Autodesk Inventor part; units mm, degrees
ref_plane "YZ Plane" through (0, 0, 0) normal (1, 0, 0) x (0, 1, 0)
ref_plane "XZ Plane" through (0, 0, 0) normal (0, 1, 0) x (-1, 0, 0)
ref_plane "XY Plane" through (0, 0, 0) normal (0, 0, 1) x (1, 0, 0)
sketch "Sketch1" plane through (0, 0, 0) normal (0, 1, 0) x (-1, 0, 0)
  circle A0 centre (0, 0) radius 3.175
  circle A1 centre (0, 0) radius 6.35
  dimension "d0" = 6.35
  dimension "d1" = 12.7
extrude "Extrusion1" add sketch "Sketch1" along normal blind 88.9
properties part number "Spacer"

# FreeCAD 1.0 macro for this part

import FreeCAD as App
import Part
import Sketcher

V = App.Vector
Q = App.Units.Quantity

doc = App.newDocument("Part")
body = doc.addObject("PartDesign::Body", "Body")

# Sketch on XZ plane
sketch1 = body.newObject("Sketcher::SketchObject", "Sketch")
sketch1.AttachmentSupport = (doc.getObject("XZ_Plane"), [""])
sketch1.MapMode = "FlatFace"
sketch1.addGeometry([
    Part.Circle(V(0, 0, 0), V(0, 0, 1), 6.35),
    Part.Circle(V(0, 0, 0), V(0, 0, 1), 3.175),
], False)
sketch1.addConstraint([
    Sketcher.Constraint("Coincident", 0, 3, -1, 1),
    Sketcher.Constraint("Coincident", 1, 3, -1, 1),
    Sketcher.Constraint("Diameter", 0, Q("0.5 in")),
    Sketcher.Constraint("Diameter", 1, Q("0.25 in")),
])
pad1 = body.newObject("PartDesign::Pad", "Pad")
pad1.Profile = sketch1
pad1.Length = Q("3.5 in")
pad1.Reversed = True

doc.recompute()
